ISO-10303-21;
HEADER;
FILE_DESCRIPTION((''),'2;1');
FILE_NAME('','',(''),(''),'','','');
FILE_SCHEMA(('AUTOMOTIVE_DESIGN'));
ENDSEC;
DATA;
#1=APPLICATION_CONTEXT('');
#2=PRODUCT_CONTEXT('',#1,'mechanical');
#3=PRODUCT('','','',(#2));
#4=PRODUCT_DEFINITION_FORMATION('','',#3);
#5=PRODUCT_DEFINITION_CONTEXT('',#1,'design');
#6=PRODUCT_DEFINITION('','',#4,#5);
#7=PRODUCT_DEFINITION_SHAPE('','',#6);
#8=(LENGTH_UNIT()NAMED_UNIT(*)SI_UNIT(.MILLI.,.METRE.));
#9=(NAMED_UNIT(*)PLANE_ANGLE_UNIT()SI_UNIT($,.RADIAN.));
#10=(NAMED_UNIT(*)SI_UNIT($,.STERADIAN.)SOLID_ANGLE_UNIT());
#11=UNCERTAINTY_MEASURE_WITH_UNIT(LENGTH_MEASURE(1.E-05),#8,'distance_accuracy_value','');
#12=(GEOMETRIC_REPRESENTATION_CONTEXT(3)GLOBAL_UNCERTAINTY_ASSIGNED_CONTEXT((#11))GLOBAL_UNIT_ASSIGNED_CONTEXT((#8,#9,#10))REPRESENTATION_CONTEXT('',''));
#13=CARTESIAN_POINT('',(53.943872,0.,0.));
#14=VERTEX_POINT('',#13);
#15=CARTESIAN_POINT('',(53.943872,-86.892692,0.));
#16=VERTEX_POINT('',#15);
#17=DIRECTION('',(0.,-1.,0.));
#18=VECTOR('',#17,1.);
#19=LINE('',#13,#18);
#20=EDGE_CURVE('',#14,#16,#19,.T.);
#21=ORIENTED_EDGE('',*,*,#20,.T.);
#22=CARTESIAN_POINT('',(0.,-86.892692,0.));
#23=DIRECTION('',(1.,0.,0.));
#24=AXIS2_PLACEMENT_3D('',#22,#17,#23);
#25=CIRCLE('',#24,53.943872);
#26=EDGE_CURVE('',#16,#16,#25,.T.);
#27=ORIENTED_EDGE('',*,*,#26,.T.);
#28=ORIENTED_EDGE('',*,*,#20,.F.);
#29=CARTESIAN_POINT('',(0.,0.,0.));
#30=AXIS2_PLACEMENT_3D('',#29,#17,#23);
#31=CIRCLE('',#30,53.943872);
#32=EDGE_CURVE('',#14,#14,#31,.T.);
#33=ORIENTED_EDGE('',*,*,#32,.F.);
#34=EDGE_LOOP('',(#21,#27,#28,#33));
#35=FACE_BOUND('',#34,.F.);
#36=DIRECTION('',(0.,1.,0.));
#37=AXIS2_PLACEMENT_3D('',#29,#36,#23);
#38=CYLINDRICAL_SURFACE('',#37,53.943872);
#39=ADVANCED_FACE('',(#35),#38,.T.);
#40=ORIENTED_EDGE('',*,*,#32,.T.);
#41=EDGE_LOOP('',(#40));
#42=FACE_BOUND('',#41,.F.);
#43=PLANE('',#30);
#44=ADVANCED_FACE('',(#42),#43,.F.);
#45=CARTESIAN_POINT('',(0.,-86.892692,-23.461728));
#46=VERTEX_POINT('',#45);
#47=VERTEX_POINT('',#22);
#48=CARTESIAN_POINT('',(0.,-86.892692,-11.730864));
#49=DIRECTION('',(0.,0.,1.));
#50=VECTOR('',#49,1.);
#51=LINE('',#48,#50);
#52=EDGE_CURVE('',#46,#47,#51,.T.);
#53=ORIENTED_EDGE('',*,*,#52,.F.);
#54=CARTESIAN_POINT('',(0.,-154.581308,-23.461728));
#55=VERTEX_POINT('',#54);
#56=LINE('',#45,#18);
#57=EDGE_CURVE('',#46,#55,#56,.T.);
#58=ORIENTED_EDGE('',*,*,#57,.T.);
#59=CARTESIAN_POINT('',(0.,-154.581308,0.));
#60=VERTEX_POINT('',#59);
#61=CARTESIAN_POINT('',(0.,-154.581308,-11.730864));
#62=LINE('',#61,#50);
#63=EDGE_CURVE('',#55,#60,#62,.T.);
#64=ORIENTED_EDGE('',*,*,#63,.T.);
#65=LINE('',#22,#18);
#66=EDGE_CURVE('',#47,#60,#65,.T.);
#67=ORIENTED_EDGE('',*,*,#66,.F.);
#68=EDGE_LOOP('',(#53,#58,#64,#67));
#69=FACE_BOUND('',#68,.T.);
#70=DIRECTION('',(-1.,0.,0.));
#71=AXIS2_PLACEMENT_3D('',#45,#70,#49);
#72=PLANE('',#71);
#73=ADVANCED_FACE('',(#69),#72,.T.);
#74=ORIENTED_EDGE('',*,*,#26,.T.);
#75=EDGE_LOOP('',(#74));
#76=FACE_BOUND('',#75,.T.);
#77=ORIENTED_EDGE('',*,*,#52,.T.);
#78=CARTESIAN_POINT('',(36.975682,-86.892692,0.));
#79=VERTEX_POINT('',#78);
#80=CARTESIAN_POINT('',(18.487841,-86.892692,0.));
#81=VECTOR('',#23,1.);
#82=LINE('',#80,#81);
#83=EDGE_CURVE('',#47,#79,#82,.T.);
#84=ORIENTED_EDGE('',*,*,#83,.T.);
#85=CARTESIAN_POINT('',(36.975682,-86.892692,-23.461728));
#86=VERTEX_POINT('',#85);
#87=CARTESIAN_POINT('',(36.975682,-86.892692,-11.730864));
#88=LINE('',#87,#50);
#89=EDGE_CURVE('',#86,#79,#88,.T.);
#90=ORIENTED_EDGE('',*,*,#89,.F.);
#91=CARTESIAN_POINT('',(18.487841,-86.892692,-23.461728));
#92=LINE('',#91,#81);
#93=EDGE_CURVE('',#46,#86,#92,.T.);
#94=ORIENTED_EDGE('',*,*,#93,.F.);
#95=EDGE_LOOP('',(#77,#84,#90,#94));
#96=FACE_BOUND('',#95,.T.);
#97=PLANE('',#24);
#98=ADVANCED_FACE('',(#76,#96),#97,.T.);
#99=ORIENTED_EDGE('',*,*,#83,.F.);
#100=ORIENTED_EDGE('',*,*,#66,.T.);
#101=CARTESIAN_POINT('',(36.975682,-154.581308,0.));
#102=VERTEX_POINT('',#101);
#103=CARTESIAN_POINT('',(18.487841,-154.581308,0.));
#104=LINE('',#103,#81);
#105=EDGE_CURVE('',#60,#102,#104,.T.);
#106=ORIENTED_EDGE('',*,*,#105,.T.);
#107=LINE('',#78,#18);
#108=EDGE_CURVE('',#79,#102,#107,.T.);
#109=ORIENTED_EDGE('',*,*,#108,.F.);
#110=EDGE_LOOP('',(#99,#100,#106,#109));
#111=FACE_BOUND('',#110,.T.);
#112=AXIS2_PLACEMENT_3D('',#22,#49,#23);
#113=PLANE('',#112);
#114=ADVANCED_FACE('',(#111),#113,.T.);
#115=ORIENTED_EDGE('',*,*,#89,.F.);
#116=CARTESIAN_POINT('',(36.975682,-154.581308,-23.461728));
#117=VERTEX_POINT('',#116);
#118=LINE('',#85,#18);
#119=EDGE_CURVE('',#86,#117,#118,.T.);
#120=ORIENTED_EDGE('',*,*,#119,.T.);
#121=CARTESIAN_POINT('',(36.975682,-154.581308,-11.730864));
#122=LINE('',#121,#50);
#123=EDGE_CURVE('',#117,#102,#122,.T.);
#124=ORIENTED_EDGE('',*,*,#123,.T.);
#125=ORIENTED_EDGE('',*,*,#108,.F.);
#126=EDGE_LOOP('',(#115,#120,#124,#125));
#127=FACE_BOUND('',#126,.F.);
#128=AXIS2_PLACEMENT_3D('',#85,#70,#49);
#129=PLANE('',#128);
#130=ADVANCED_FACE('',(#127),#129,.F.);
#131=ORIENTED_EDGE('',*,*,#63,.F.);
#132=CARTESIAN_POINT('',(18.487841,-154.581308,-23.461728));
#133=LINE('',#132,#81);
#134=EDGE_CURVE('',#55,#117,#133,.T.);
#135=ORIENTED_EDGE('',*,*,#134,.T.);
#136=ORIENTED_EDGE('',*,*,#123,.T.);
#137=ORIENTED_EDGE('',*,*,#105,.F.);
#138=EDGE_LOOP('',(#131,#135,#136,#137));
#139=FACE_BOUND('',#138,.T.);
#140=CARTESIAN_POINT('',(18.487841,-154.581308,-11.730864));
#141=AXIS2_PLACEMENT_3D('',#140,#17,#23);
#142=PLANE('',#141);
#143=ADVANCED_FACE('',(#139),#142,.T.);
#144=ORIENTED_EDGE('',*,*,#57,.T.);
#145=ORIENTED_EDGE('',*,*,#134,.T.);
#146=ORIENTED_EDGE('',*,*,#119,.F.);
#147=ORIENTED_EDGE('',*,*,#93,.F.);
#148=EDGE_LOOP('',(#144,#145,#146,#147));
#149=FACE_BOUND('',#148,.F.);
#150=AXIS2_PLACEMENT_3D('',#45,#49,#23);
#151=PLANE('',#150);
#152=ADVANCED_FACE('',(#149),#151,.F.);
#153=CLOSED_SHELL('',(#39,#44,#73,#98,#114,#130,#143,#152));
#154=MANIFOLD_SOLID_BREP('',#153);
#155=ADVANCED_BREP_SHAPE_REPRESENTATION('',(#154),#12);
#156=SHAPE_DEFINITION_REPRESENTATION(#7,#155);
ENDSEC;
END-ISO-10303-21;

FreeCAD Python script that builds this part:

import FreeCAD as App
import Part
import Sketcher

V = App.Vector
Q = App.Units.Quantity

doc = App.newDocument("Part")
params = doc.addObject("Spreadsheet::Sheet", "Params")
for row, (alias, value) in enumerate([
    ("pad1_length", "86.892692 mm"),
    ("pad2_length", "67.688616 mm"),
], start=1):
    params.set(f"A{row}", alias)
    params.set(f"B{row}", "=" + value)
    params.setAlias(f"B{row}", alias)

body = doc.addObject("PartDesign::Body", "Body")

sketch1 = body.newObject("Sketcher::SketchObject", "Sketch")
sketch1.AttachmentSupport = (doc.getObject("XZ_Plane"), [""])
sketch1.MapMode = "FlatFace"
sketch1.addGeometry(Part.Circle(V(0, 0, 0), V(0, 0, 1), 53.943872), False)
sketch1.addConstraint([
    Sketcher.Constraint("Coincident", 0, 3, -1, 1),
    Sketcher.Constraint("Diameter", 0, Q("107.887744 mm")),
])
pad1 = body.newObject("PartDesign::Pad", "Pad")
pad1.Profile = sketch1
pad1.setExpression("Length", "Params.pad1_length")

sketch2 = body.newObject("Sketcher::SketchObject", "Sketch001")
sketch2.AttachmentSupport = (doc.getObject("XZ_Plane"), [""])
sketch2.MapMode = "FlatFace"
sketch2.AttachmentOffset = App.Placement(V(0, 0, 86.892692), App.Rotation())
sketch2.addGeometry([
    Part.LineSegment(V(0, 0, 0), V(0, -23.461728, 0)),
    Part.LineSegment(V(0, -23.461728, 0), V(36.975682, -23.461728, 0)),
    Part.LineSegment(V(36.975682, -23.461728, 0), V(36.975682, 0, 0)),
    Part.LineSegment(V(36.975682, 0, 0), V(0, 0, 0)),
], False)
sketch2.addConstraint([
    Sketcher.Constraint("Coincident", 0, 2, 1, 1),
    Sketcher.Constraint("Coincident", 1, 2, 2, 1),
    Sketcher.Constraint("Coincident", 2, 2, 3, 1),
    Sketcher.Constraint("Coincident", 3, 2, 0, 1),
    Sketcher.Constraint("Vertical", 0),
    Sketcher.Constraint("Horizontal", 1),
    Sketcher.Constraint("Vertical", 2),
    Sketcher.Constraint("Horizontal", 3),
    Sketcher.Constraint("Coincident", 3, 2, -1, 1),
    Sketcher.Constraint("DistanceY", 0, 2, 0, 1, Q("23.461729 mm")),
    Sketcher.Constraint("DistanceX", 1, 1, 1, 2, Q("36.975682 mm")),
])
pad2 = body.newObject("PartDesign::Pad", "Pad001")
pad2.Profile = sketch2
pad2.setExpression("Length", "Params.pad2_length")

doc.recompute()
